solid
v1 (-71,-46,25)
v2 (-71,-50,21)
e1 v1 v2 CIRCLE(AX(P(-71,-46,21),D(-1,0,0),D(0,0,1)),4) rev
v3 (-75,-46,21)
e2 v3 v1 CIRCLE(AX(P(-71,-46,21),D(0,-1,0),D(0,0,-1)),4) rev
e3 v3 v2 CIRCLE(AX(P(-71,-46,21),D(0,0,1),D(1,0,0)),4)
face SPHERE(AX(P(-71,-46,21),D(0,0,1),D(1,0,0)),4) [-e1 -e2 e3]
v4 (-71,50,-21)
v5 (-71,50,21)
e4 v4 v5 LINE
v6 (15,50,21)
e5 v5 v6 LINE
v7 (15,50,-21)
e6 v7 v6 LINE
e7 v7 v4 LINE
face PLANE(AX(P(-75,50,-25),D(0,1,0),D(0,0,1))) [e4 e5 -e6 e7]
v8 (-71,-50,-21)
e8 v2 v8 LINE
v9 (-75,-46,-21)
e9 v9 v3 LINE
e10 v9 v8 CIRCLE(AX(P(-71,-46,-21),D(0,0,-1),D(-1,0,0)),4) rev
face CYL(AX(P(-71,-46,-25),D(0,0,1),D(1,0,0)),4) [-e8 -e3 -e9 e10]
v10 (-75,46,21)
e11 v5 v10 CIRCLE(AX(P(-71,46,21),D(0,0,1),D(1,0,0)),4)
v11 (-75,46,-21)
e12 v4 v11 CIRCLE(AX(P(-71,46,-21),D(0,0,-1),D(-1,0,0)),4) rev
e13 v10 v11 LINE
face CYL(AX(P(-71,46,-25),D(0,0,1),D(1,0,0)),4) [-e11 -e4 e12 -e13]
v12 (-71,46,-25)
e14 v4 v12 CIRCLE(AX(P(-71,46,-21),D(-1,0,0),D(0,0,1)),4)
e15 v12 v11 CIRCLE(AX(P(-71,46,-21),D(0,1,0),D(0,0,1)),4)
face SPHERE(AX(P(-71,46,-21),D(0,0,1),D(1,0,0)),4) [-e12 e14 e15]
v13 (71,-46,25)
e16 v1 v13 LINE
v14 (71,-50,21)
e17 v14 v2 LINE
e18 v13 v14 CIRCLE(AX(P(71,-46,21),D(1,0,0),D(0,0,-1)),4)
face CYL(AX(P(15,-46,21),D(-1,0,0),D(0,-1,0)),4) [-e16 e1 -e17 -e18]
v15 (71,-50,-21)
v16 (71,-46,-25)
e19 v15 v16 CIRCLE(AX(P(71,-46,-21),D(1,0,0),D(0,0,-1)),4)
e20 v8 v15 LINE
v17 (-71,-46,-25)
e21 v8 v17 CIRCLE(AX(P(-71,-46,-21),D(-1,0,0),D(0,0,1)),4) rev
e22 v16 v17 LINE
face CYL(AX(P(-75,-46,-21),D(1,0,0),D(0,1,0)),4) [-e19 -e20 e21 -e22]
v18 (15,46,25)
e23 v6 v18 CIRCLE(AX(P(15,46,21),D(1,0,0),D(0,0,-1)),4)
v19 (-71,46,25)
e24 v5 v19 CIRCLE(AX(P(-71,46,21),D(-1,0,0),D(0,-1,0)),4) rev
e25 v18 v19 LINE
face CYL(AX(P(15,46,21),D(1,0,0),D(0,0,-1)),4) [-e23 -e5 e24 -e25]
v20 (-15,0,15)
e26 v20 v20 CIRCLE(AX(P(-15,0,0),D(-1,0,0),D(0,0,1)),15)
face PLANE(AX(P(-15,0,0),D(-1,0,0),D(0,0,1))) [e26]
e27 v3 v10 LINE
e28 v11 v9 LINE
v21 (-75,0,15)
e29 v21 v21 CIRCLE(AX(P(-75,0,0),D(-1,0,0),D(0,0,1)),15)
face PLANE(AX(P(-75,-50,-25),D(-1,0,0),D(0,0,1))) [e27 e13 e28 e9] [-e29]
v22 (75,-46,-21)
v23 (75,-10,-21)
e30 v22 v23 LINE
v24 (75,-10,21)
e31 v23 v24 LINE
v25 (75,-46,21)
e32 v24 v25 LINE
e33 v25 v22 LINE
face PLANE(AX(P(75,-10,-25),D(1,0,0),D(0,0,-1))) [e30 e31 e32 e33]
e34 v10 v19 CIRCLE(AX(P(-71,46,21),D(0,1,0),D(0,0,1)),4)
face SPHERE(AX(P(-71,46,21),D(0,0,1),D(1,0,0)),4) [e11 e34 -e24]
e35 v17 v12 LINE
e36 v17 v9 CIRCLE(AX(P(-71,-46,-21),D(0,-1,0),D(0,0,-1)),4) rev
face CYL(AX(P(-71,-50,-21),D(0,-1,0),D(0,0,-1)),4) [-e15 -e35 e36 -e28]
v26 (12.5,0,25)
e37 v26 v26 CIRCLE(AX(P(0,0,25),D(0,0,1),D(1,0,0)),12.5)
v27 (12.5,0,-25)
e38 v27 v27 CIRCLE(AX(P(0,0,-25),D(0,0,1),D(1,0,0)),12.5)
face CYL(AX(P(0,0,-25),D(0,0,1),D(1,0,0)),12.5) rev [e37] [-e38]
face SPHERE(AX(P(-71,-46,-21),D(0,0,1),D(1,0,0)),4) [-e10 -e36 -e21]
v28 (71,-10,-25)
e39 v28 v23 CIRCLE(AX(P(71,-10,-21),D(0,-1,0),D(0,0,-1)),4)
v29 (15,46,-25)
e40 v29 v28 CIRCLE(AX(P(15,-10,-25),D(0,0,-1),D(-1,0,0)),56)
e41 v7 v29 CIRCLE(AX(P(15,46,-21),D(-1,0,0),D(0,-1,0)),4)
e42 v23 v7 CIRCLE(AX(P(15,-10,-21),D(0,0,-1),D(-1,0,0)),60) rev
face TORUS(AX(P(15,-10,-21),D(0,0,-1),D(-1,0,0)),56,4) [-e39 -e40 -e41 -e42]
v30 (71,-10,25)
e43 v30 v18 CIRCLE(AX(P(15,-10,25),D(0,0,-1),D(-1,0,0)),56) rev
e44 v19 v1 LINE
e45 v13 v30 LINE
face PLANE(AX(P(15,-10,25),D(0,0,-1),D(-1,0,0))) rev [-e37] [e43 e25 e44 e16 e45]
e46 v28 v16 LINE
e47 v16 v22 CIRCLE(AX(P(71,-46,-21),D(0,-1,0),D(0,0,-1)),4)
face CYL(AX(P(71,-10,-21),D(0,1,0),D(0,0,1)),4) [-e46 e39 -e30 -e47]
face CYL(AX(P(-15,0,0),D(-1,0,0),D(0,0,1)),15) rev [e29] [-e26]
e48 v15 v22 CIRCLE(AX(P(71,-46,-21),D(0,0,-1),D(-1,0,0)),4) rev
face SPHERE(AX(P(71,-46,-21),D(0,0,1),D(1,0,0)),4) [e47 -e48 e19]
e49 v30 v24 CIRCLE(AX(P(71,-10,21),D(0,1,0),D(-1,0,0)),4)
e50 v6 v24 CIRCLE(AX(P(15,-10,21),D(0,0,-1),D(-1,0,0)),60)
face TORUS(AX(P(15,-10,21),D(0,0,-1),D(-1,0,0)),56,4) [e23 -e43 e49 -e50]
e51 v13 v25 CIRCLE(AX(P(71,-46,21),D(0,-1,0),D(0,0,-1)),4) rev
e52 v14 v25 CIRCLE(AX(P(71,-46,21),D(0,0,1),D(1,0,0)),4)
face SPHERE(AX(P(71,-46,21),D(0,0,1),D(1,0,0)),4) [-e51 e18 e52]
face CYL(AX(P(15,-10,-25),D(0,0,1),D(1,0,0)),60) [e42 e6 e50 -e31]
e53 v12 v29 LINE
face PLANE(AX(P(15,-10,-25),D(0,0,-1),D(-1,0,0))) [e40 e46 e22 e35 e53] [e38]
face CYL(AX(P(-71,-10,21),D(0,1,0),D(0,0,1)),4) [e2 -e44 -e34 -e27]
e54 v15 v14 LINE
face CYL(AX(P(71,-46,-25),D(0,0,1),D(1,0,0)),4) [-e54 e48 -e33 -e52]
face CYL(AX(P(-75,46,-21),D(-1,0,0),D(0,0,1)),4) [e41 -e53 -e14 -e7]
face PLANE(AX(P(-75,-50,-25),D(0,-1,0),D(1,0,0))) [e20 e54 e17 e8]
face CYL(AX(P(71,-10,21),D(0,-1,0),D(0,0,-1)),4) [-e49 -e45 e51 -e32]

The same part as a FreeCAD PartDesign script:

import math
import FreeCAD as App
import Part
import Sketcher
Q = App.Units.Quantity


def edges_at(feature, points):
    """Names of the edges that pass closest to the given points."""
    edges = feature.Shape.Edges
    near = lambda p: min(range(len(edges)), key=lambda i: edges[i].distToShape(Part.Vertex(*p))[0])
    return sorted({f"Edge{near(p) + 1}" for p in points})

doc = App.newDocument("Part")
params = doc.addObject("Spreadsheet::Sheet", "Params")
for row, (alias, value) in enumerate([
    ("sketch1_diameter", "25 mm"),
    ("sketch1_radius", "60 mm"),
    ("sketch1_width", "150 mm"),
    ("sketch1_height", "40 mm"),
    ("pad1_length", "50 mm"),
    ("sketch2_diameter", "30 mm"),
    ("pocket1_length", "60 mm"),
    ("fillet_radius", "4 mm"),
], start=1):
    params.set(f"A{row}", alias)
    params.set(f"B{row}", "=" + value)
    params.setAlias(f"B{row}", alias)

body = doc.addObject("PartDesign::Body", "Body")

# Sketch on XY plane
sketch1 = body.newObject("Sketcher::SketchObject", "Sketch")
sketch1.AttachmentSupport = (doc.getObject("XY_Plane"), [""])
sketch1.MapMode = "FlatFace"
sketch1.addGeometry(Part.LineSegment(App.Vector(-75, -50, 0), App.Vector(75, -50, 0)), False)
sketch1.addGeometry(Part.LineSegment(App.Vector(75, -50, 0), App.Vector(75, -10, 0)), False)
sketch1.addGeometry(Part.ArcOfCircle(Part.Circle(App.Vector(15, -10, 0), App.Vector(0, 0, 1), 60), math.radians(0), math.radians(90)), False)
sketch1.addGeometry(Part.LineSegment(App.Vector(15, 50, 0), App.Vector(-75, 50, 0)), False)
sketch1.addGeometry(Part.LineSegment(App.Vector(-75, 50, 0), App.Vector(-75, -50, 0)), False)
sketch1.addGeometry(Part.Circle(App.Vector(0, 0, 0), App.Vector(0, 0, 1), 12.5), False)
sketch1.addConstraint(Sketcher.Constraint("Coincident", 0, 2, 1, 1))
sketch1.addConstraint(Sketcher.Constraint("Tangent", 1, 2, 2, 1))
sketch1.addConstraint(Sketcher.Constraint("Tangent", 2, 2, 3, 1))
sketch1.addConstraint(Sketcher.Constraint("Coincident", 3, 2, 4, 1))
sketch1.addConstraint(Sketcher.Constraint("Coincident", 4, 2, 0, 1))
sketch1.addConstraint(Sketcher.Constraint("Horizontal", 0))
sketch1.addConstraint(Sketcher.Constraint("Vertical", 1))
sketch1.addConstraint(Sketcher.Constraint("Horizontal", 3))
sketch1.addConstraint(Sketcher.Constraint("Vertical", 4))
sketch1.addConstraint(Sketcher.Constraint("Coincident", 5, 3, -1, 1))
sketch1.addConstraint(Sketcher.Constraint("Symmetric", 0, 2, 3, 2, -1, 1))
sketch1.addConstraint(Sketcher.Constraint("Diameter", 5, Q("25 mm")))
sketch1.addConstraint(Sketcher.Constraint("Radius", 2, Q("60 mm")))
sketch1.addConstraint(Sketcher.Constraint("DistanceX", 0, 1, 0, 2, Q("150 mm")))
sketch1.addConstraint(Sketcher.Constraint("DistanceY", 1, 1, 1, 2, Q("40 mm")))
sketch1.setExpression("Constraints[11]", "Params.sketch1_diameter")
sketch1.setExpression("Constraints[12]", "Params.sketch1_radius")
sketch1.setExpression("Constraints[13]", "Params.sketch1_width")
sketch1.setExpression("Constraints[14]", "Params.sketch1_height")
pad1 = body.newObject("PartDesign::Pad", "Pad")
pad1.Profile = sketch1
pad1.setExpression("Length", "Params.pad1_length")
pad1.Midplane = True

# Sketch on YZ plane
sketch2 = body.newObject("Sketcher::SketchObject", "Sketch001")
sketch2.AttachmentSupport = (doc.getObject("YZ_Plane"), [""])
sketch2.MapMode = "FlatFace"
sketch2.AttachmentOffset = App.Placement(App.Vector(0, 0, -75), App.Rotation())
sketch2.addGeometry(Part.Circle(App.Vector(0, 0, 0), App.Vector(0, 0, 1), 15), False)
sketch2.addConstraint(Sketcher.Constraint("Coincident", 0, 3, -1, 1))
sketch2.addConstraint(Sketcher.Constraint("Diameter", 0, Q("30 mm")))
sketch2.setExpression("Constraints[1]", "Params.sketch2_diameter")
pocket1 = body.newObject("PartDesign::Pocket", "Pocket")
pocket1.Profile = sketch2
pocket1.setExpression("Length", "Params.pocket1_length")
pocket1.Reversed = True
doc.recompute()

fillet = body.newObject("PartDesign::Fillet", "Fillet")
fillet.Base = (pocket1, edges_at(pocket1, [
    (0, -50, -25),
    (75, -30, -25),
    (57.426, 32.426, -25),
    (-30, 50, -25),
    (57.426, 32.426, 25),
    (75, -30, 25),
    (0, -50, 25),
    (-75, 0, 25),
    (-30, 50, 25),
    (-75, 0, -25),
    (75, -50, 0),
    (-75, -50, 0),
    (-75, 50, 0),
]))
fillet.setExpression("Radius", "Params.fillet_radius")

doc.recompute()
